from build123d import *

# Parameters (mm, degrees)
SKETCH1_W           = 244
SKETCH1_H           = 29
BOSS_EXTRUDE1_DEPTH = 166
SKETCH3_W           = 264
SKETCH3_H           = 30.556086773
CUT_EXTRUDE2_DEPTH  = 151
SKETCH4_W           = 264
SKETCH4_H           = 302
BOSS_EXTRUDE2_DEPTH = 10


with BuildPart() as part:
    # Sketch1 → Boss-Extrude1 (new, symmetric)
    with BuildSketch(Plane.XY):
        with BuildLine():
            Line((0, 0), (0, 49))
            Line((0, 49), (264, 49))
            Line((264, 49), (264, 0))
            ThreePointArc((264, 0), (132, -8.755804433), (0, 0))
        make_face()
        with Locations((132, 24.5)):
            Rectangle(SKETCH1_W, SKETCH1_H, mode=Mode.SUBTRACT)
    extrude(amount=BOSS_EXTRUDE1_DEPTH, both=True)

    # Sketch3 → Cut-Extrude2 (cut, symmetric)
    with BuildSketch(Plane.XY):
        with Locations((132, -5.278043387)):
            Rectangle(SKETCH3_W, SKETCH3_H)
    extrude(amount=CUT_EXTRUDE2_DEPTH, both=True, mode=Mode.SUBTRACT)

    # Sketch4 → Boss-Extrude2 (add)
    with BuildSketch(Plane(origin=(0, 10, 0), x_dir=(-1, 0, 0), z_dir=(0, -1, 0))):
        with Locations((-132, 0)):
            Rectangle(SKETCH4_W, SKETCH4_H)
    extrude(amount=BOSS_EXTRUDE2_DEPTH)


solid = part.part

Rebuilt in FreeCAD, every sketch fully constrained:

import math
import FreeCAD as App
import Part
import Sketcher


def add_polygon(sketch, points):
    """Adds a closed chain of lines whose ends are joined by coincident constraints."""
    first, n = sketch.GeometryCount, len(points)
    for a, b in zip(points, points[1:] + points[:1]):
        sketch.addGeometry(Part.LineSegment(App.Vector(*a, 0), App.Vector(*b, 0)), False)
    for i in range(n):
        sketch.addConstraint(Sketcher.Constraint("Coincident", first + i, 2, first + (i + 1) % n, 1))

doc = App.newDocument("Part")
params = doc.addObject("Spreadsheet::Sheet", "Params")
for row, (alias, value) in enumerate([
    ("sketch1_width", "264 mm"),
    ("sketch1_width2", "244 mm"),
    ("sketch1_height", "49 mm"),
    ("sketch1_height2", "29 mm"),
    ("pad1_length", "332 mm"),
    ("sketch2_width", "264 mm"),
    ("pocket1_length", "302 mm"),
    ("sketch3_width", "264 mm"),
    ("sketch3_height", "302 mm"),
    ("pad2_length", "10 mm"),
], start=1):
    params.set(f"A{row}", alias)
    params.set(f"B{row}", "=" + value)
    params.setAlias(f"B{row}", alias)

body = doc.addObject("PartDesign::Body", "Body")

# Sketch on XY plane
sketch1 = doc.addObject("Sketcher::SketchObject", "Sketch")
body.addObject(sketch1)
sketch1.AttachmentSupport = (doc.XY_Plane, [""])
sketch1.MapMode = "FlatFace"
sketch1.addGeometry(Part.LineSegment(App.Vector(0, 49, 0), App.Vector(0, 0, 0)), False)  # 0
sketch1.addGeometry(Part.ArcOfCircle(Part.Circle(App.Vector(132, 991, 0), App.Vector(0, 0, 1), 999), math.radians(-97.59), math.radians(-82.41)), False)  # 1
sketch1.addGeometry(Part.LineSegment(App.Vector(264, 0, 0), App.Vector(264, 49, 0)), False)  # 2
sketch1.addGeometry(Part.LineSegment(App.Vector(264, 49, 0), App.Vector(0, 49, 0)), False)  # 3
add_polygon(sketch1, [(10, 10), (10, 39), (254, 39), (254, 10)])  # lines 4-7
sketch1.addConstraint([
    Sketcher.Constraint("Coincident", 0, 2, 1, 1),
    Sketcher.Constraint("Coincident", 1, 2, 2, 1),
    Sketcher.Constraint("Coincident", 2, 2, 3, 1),
    Sketcher.Constraint("Coincident", 3, 2, 0, 1),
    Sketcher.Constraint("Vertical", 0),
    Sketcher.Constraint("Vertical", 2),
    Sketcher.Constraint("Horizontal", 3),
    Sketcher.Constraint("Vertical", 4),
    Sketcher.Constraint("Horizontal", 5),
    Sketcher.Constraint("Vertical", 6),
    Sketcher.Constraint("Horizontal", 7),
    Sketcher.Constraint("Coincident", 0, 2, -1, 1),
    Sketcher.Constraint("PointOnObject", 1, 2, -1),
    Sketcher.Constraint("DistanceX", 3, 2, 3, 1, 264.0),
    Sketcher.Constraint("DistanceX", 5, 1, 5, 2, 244.0),
    Sketcher.Constraint("DistanceY", 0, 2, 0, 1, 49.0),
    Sketcher.Constraint("DistanceY", 4, 1, 4, 2, 29.0),
    Sketcher.Constraint("DistanceX", -1, 1, 4, 2, 10.0),
    Sketcher.Constraint("DistanceY", -1, 1, 4, 2, 39.0),
    Sketcher.Constraint("Radius", 1, 999.375),
])
sketch1.setExpression("Constraints[17]", "Params.sketch1_width")
sketch1.setExpression("Constraints[18]", "Params.sketch1_width2")
sketch1.setExpression("Constraints[19]", "Params.sketch1_height")
sketch1.setExpression("Constraints[20]", "Params.sketch1_height2")
pad1 = doc.addObject("PartDesign::Pad", "Pad")
body.addObject(pad1)
pad1.Profile = sketch1
pad1.setExpression("Length", "Params.pad1_length")
pad1.Midplane = True

# Sketch on XY plane
sketch2 = doc.addObject("Sketcher::SketchObject", "Sketch001")
body.addObject(sketch2)
sketch2.AttachmentSupport = (doc.XY_Plane, [""])
sketch2.MapMode = "FlatFace"
add_polygon(sketch2, [(0, 10), (0, -21), (264, -21), (264, 10)])  # lines 0-3
sketch2.addConstraint([
    Sketcher.Constraint("Vertical", 0),
    Sketcher.Constraint("Horizontal", 1),
    Sketcher.Constraint("Vertical", 2),
    Sketcher.Constraint("Horizontal", 3),
    Sketcher.Constraint("PointOnObject", 0, 2, -2),
    Sketcher.Constraint("DistanceX", 1, 1, 1, 2, 264.0),
    Sketcher.Constraint("DistanceY", -1, 1, 2, 2, 10.0),
    Sketcher.Constraint("DistanceY", 0, 2, 0, 1, 30.556087),
])
sketch2.setExpression("Constraints[9]", "Params.sketch2_width")
pocket1 = doc.addObject("PartDesign::Pocket", "Pocket")
body.addObject(pocket1)
pocket1.Profile = sketch2
pocket1.setExpression("Length", "Params.pocket1_length")
pocket1.Midplane = True

# Sketch on XZ plane
sketch3 = doc.addObject("Sketcher::SketchObject", "Sketch002")
body.addObject(sketch3)
sketch3.AttachmentSupport = (doc.XZ_Plane, [""])
sketch3.MapMode = "FlatFace"
sketch3.AttachmentOffset = App.Placement(App.Vector(0, 0, -10), App.Rotation())
add_polygon(sketch3, [(264, -151), (264, 151), (0, 151), (0, -151)])  # lines 0-3
sketch3.addConstraint([
    Sketcher.Constraint("Vertical", 0),
    Sketcher.Constraint("Horizontal", 1),
    Sketcher.Constraint("Vertical", 2),
    Sketcher.Constraint("Horizontal", 3),
    Sketcher.Constraint("Symmetric", 1, 2, 2, 2, -1, 1),
    Sketcher.Constraint("DistanceX", 1, 2, 1, 1, 264.0),
    Sketcher.Constraint("DistanceY", 0, 1, 0, 2, 302.0),
])
sketch3.setExpression("Constraints[9]", "Params.sketch3_width")
sketch3.setExpression("Constraints[10]", "Params.sketch3_height")
pad2 = doc.addObject("PartDesign::Pad", "Pad001")
body.addObject(pad2)
pad2.Profile = sketch3
pad2.setExpression("Length", "Params.pad2_length")

doc.recompute()
